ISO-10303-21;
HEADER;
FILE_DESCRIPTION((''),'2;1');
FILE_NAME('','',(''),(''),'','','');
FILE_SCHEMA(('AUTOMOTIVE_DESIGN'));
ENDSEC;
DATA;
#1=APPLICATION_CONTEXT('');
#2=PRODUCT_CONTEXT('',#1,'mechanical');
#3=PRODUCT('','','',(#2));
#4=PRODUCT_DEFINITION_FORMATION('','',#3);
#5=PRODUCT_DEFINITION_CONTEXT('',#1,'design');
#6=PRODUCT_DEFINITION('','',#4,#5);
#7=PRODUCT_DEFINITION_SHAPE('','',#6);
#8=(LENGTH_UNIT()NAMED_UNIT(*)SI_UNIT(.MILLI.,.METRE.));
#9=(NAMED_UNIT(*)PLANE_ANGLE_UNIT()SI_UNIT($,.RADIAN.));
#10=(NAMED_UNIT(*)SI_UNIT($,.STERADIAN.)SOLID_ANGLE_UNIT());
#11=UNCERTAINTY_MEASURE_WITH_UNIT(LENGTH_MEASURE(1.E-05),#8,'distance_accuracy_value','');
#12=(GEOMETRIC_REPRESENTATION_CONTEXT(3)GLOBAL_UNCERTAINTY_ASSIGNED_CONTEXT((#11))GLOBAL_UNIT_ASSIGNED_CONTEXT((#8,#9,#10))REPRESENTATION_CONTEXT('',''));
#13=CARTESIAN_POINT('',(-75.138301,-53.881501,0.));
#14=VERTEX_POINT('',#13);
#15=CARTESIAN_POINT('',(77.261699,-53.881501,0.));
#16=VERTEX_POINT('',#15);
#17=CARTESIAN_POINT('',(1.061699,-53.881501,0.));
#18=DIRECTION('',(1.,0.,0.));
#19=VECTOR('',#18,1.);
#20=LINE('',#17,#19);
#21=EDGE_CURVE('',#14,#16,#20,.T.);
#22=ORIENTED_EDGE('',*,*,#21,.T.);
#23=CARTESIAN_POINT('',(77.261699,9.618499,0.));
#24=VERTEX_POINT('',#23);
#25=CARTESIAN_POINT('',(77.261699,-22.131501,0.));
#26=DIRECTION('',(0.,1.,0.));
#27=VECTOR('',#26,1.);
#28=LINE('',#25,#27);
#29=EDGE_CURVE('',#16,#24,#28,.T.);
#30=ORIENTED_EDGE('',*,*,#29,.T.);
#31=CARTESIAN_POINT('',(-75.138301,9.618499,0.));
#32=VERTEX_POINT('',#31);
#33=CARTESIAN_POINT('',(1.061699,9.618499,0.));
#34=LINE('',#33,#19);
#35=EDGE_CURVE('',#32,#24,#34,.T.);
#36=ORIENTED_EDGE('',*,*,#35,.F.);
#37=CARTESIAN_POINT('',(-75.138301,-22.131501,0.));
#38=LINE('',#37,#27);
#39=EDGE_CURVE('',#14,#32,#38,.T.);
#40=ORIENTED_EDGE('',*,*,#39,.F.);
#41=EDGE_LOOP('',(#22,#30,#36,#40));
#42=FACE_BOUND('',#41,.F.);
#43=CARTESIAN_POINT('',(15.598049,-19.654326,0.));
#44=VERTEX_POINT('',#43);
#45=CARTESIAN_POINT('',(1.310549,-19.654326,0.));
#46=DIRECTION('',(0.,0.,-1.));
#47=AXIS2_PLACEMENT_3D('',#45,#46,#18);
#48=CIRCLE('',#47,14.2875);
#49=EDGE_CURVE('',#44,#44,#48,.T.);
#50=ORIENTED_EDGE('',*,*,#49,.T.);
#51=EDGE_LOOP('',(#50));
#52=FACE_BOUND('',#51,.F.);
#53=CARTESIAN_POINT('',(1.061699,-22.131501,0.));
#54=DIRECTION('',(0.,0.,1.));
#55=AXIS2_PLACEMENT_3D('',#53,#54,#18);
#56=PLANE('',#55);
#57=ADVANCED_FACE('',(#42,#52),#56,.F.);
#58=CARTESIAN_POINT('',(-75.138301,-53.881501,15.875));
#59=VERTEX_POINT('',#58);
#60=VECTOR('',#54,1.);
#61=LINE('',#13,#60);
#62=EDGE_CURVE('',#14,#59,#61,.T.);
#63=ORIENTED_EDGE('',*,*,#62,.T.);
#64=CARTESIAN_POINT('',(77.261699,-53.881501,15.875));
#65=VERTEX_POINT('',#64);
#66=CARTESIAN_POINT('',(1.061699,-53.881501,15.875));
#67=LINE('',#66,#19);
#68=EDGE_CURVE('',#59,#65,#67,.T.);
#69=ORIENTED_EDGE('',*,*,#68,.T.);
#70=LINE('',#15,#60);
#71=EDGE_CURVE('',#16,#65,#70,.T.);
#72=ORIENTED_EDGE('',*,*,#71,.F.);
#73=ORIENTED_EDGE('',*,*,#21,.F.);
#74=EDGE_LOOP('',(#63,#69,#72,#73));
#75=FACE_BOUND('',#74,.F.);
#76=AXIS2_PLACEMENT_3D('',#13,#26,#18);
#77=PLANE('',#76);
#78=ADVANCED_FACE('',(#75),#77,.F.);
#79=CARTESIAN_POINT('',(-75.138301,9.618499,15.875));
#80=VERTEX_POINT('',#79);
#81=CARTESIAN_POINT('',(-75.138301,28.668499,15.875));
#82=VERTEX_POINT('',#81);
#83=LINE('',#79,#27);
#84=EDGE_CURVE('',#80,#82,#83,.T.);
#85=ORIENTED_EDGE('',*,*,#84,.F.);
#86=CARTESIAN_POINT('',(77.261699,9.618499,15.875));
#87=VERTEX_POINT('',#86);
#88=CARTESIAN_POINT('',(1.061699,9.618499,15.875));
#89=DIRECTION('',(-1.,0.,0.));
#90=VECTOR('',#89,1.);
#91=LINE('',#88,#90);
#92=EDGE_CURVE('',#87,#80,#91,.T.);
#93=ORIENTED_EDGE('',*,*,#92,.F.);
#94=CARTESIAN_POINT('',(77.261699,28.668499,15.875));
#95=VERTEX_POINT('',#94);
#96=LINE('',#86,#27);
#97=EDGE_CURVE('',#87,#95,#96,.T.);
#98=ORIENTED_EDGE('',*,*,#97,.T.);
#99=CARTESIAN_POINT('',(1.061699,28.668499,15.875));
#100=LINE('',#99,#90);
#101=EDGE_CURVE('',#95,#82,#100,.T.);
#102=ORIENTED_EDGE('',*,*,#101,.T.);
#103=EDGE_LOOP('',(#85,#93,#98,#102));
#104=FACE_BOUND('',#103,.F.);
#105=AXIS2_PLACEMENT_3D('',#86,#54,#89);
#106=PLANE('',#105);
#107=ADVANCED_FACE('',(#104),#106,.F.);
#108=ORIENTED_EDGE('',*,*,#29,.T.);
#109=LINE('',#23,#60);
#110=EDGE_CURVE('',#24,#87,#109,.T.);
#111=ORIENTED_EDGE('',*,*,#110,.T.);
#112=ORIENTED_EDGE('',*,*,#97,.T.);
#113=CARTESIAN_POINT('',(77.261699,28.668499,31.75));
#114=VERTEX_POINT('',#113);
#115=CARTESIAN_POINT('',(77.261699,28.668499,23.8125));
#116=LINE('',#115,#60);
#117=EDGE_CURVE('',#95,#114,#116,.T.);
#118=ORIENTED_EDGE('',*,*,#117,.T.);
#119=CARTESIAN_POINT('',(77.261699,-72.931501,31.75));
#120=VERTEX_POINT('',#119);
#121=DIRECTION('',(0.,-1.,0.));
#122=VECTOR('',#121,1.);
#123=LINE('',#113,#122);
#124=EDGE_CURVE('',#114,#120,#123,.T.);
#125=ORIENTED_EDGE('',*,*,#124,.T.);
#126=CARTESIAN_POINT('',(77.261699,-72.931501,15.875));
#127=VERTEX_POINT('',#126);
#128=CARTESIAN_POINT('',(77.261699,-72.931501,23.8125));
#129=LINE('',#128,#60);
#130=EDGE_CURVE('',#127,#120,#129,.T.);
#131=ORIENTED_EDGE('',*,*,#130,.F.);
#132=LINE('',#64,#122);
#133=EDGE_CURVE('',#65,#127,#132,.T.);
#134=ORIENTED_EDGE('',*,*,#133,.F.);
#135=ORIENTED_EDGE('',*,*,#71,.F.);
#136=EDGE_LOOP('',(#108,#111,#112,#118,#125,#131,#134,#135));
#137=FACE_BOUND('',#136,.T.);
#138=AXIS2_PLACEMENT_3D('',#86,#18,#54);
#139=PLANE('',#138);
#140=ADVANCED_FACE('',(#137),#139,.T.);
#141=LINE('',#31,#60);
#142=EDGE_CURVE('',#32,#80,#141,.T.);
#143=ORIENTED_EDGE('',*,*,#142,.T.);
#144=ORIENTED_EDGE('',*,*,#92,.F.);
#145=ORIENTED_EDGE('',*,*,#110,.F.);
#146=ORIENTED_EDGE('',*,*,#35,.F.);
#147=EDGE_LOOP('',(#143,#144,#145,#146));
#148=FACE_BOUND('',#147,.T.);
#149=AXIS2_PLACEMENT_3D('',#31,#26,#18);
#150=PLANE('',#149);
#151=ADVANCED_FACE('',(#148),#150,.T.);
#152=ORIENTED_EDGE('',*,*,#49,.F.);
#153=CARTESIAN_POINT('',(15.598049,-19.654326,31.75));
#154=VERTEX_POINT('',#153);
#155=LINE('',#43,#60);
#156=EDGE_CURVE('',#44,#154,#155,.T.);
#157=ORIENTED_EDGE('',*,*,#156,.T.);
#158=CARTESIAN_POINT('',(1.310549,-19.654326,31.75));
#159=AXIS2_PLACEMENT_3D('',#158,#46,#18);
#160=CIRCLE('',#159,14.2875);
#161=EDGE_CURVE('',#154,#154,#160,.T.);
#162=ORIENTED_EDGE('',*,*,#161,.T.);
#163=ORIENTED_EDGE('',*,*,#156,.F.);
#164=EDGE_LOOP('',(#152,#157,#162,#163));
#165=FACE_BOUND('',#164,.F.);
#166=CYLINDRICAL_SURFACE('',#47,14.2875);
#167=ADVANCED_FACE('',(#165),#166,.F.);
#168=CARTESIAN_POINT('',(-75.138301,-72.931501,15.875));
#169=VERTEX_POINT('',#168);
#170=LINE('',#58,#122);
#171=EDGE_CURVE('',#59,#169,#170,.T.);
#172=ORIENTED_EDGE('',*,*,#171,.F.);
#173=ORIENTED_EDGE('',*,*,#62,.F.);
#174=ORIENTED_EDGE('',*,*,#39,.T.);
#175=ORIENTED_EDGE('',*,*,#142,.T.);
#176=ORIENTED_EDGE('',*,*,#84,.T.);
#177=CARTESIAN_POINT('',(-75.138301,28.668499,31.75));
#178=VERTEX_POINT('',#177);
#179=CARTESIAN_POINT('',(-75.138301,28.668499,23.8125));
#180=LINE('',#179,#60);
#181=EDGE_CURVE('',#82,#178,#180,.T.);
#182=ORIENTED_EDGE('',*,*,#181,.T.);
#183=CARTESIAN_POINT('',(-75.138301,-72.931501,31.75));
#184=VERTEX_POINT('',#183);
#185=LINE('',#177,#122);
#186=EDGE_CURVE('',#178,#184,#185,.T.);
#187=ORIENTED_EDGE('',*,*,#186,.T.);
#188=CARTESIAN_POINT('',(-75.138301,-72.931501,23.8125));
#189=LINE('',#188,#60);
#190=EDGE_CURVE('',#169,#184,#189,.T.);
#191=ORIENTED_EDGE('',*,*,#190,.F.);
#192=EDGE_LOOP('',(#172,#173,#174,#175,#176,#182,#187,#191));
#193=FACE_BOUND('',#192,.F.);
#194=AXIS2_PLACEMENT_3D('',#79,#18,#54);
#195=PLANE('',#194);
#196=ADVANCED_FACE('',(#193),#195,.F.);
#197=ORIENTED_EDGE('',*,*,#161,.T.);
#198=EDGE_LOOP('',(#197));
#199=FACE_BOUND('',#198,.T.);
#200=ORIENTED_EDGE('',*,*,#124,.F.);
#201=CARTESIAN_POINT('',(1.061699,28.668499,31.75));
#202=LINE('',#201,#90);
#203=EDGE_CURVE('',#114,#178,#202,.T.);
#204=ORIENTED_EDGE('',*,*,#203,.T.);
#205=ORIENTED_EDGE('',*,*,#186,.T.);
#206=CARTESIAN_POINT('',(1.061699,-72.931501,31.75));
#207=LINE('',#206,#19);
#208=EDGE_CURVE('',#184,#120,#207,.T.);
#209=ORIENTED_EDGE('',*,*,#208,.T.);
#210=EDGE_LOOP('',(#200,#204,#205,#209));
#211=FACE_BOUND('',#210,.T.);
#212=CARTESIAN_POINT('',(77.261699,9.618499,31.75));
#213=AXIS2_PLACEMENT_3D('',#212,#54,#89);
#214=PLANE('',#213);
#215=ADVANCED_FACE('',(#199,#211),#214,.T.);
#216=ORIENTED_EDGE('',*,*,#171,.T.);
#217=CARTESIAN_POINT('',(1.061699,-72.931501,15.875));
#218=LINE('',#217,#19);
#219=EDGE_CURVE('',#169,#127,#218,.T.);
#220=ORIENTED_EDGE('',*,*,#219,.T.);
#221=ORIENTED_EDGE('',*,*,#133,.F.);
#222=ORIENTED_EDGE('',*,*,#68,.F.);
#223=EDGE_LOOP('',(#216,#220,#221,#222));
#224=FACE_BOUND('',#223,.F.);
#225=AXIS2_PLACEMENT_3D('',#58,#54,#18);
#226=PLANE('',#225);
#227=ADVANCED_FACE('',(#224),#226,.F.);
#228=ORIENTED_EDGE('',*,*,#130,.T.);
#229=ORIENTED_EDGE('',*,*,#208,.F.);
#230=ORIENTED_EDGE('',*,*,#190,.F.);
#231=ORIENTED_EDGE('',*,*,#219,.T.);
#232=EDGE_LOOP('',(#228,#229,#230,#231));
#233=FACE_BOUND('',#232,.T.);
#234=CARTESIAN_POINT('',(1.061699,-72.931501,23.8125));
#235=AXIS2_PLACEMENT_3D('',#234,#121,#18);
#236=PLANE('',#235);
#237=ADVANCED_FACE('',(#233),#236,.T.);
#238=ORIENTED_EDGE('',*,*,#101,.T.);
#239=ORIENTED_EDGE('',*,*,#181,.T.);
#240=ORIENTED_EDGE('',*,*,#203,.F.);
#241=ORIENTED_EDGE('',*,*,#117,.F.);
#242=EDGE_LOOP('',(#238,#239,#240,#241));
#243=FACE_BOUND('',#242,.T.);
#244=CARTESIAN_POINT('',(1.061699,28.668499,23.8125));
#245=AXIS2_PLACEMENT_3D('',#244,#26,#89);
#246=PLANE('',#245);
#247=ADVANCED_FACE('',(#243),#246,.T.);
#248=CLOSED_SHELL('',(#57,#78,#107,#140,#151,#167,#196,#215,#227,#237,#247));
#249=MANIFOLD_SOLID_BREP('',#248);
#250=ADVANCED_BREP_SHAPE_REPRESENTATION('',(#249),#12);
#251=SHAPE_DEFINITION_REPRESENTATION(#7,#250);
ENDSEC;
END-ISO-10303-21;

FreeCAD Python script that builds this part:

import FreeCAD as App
import Part
import Sketcher

V = App.Vector
Q = App.Units.Quantity


def add_polygon(sketch, points):
    """Adds a closed chain of lines whose ends are joined by coincident constraints."""
    first, n = sketch.GeometryCount, len(points)
    for a, b in zip(points, points[1:] + points[:1]):
        sketch.addGeometry(Part.LineSegment(App.Vector(*a, 0), App.Vector(*b, 0)), False)
    for i in range(n):
        sketch.addConstraint(Sketcher.Constraint("Coincident", first + i, 2, first + (i + 1) % n, 1))

doc = App.newDocument("Part")
body = doc.addObject("PartDesign::Body", "Body")

sketch1 = body.newObject("Sketcher::SketchObject", "Sketch")
sketch1.AttachmentSupport = (doc.getObject("XY_Plane"), [""])
sketch1.MapMode = "FlatFace"
add_polygon(sketch1, [(-75.138301, 9.618499), (-75.138301, -53.881501), (77.261699, -53.881501), (77.261699, 9.618499)])
sketch1.addConstraint(Sketcher.Constraint("Vertical", 0))
sketch1.addConstraint(Sketcher.Constraint("Horizontal", 1))
sketch1.addConstraint(Sketcher.Constraint("Vertical", 2))
sketch1.addConstraint(Sketcher.Constraint("Horizontal", 3))
sketch1.addConstraint(Sketcher.Constraint("DistanceX", 1, 1, 1, 2, Q("6 in")))
sketch1.addConstraint(Sketcher.Constraint("DistanceY", 0, 2, 0, 1, Q("2.5 in")))
sketch1.addConstraint(Sketcher.Constraint("DistanceX", 0, 2, -1, 1, 75.138301))
sketch1.addConstraint(Sketcher.Constraint("DistanceY", 0, 2, -1, 1, 53.881501))
pad1 = body.newObject("PartDesign::Pad", "Pad")
pad1.Profile = sketch1
pad1.Length = Q("1.25 in")

sketch2 = body.newObject("Sketcher::SketchObject", "Sketch001")
sketch2.AttachmentSupport = (doc.getObject("XZ_Plane"), [""])
sketch2.MapMode = "FlatFace"
sketch2.AttachmentOffset = App.Placement(V(0, 0, 53.881501), App.Rotation())
add_polygon(sketch2, [(-75.138301, 31.75), (-75.138301, 15.875), (77.261699, 15.875), (77.261699, 31.75)])
sketch2.addConstraint(Sketcher.Constraint("Vertical", 0))
sketch2.addConstraint(Sketcher.Constraint("Horizontal", 1))
sketch2.addConstraint(Sketcher.Constraint("Vertical", 2))
sketch2.addConstraint(Sketcher.Constraint("Horizontal", 3))
sketch2.addConstraint(Sketcher.Constraint("DistanceX", 1, 1, 1, 2, Q("6 in")))
sketch2.addConstraint(Sketcher.Constraint("DistanceY", 0, 2, 0, 1, Q("0.625 in")))
sketch2.addConstraint(Sketcher.Constraint("DistanceY", -1, 1, 2, 2, Q("1.25 in")))
sketch2.addConstraint(Sketcher.Constraint("DistanceX", 0, 2, -1, 1, 75.138301))
pad2 = body.newObject("PartDesign::Pad", "Pad001")
pad2.Profile = sketch2
pad2.Length = Q("0.75 in")

sketch3 = body.newObject("Sketcher::SketchObject", "Sketch002")
sketch3.AttachmentSupport = (doc.getObject("XZ_Plane"), [""])
sketch3.MapMode = "FlatFace"
sketch3.AttachmentOffset = App.Placement(V(0, 0, -9.618499), App.Rotation())
add_polygon(sketch3, [(77.261699, 31.75), (77.261699, 15.875), (-75.138301, 15.875), (-75.138301, 31.75)])
sketch3.addConstraint(Sketcher.Constraint("Vertical", 0))
sketch3.addConstraint(Sketcher.Constraint("Horizontal", 1))
sketch3.addConstraint(Sketcher.Constraint("Vertical", 2))
sketch3.addConstraint(Sketcher.Constraint("Horizontal", 3))
sketch3.addConstraint(Sketcher.Constraint("DistanceX", 1, 2, 1, 1, Q("6 in")))
sketch3.addConstraint(Sketcher.Constraint("DistanceY", 0, 2, 0, 1, Q("0.625 in")))
sketch3.addConstraint(Sketcher.Constraint("DistanceY", -1, 1, 2, 2, Q("1.25 in")))
sketch3.addConstraint(Sketcher.Constraint("DistanceX", -1, 1, 0, 2, 77.261699))
pad3 = body.newObject("PartDesign::Pad", "Pad002")
pad3.Profile = sketch3
pad3.Length = Q("0.75 in")
pad3.Reversed = True

sketch4 = body.newObject("Sketcher::SketchObject", "Sketch003")
sketch4.AttachmentSupport = (doc.getObject("XY_Plane"), [""])
sketch4.MapMode = "FlatFace"
sketch4.addGeometry(Part.Circle(V(1.310549, -19.654326, 0), V(0, 0, 1), 14.2875), False)
sketch4.addConstraint(Sketcher.Constraint("Diameter", 0, Q("1.125 in")))
sketch4.addConstraint(Sketcher.Constraint("DistanceX", -1, 1, 0, 3, 1.310549))
sketch4.addConstraint(Sketcher.Constraint("DistanceY", 0, 3, -1, 1, 19.654326))
pocket1 = body.newObject("PartDesign::Pocket", "Pocket")
pocket1.Profile = sketch4
pocket1.Type = "ThroughAll"
pocket1.Reversed = True

doc.recompute()
